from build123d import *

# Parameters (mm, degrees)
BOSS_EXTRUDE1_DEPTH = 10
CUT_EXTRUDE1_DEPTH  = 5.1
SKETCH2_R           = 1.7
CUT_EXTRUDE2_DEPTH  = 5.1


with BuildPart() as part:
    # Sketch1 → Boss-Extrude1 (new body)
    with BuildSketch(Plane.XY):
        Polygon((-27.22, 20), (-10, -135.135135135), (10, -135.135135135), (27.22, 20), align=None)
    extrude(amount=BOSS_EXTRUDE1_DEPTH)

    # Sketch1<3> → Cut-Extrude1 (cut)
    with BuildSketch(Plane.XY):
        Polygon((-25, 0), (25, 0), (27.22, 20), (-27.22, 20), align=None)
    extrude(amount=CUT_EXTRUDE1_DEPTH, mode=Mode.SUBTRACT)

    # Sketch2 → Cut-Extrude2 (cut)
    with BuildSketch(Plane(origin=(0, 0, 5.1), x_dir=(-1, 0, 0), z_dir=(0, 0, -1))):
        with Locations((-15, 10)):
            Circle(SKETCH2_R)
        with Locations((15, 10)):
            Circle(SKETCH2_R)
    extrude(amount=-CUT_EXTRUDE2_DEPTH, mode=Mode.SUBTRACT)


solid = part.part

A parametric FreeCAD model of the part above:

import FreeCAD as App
import Part
import Sketcher
from FreeCAD import Vector

doc = App.newDocument("Part")
body = doc.addObject("PartDesign::Body", "Body")

sketch1 = body.newObject("Sketcher::SketchObject", "Sketch")
sketch1.AttachmentSupport = (doc.getObject("XY_Plane"), [""])
sketch1.MapMode = "FlatFace"
sketch1.addGeometry([
    Part.LineSegment(Vector(-27, 20, 0), Vector(-10, -135, 0)),
    Part.LineSegment(Vector(-10, -135, 0), Vector(10, -135, 0)),
    Part.LineSegment(Vector(10, -135, 0), Vector(27, 20, 0)),
    Part.LineSegment(Vector(27, 20, 0), Vector(-27, 20, 0)),
], False)
sketch1.addConstraint([
    Sketcher.Constraint("Coincident", 0, 2, 1, 1),
    Sketcher.Constraint("Coincident", 1, 2, 2, 1),
    Sketcher.Constraint("Coincident", 2, 2, 3, 1),
    Sketcher.Constraint("Coincident", 3, 2, 0, 1),
    Sketcher.Constraint("Horizontal", 1),
    Sketcher.Constraint("Horizontal", 3),
    Sketcher.Constraint("Equal", 0, 2),
    Sketcher.Constraint("DistanceX", 1, 1, 1, 2, 20.0),
    Sketcher.Constraint("DistanceX", 0, 2, -1, 1, 10.0),
    Sketcher.Constraint("DistanceY", -1, 1, 2, 2, 20.0),
    Sketcher.Constraint("DistanceX", 3, 2, 3, 1, 54.44),
    Sketcher.Constraint("Distance", 0, 156.087919),
])
pad1 = body.newObject("PartDesign::Pad", "Pad")
pad1.Profile = sketch1
pad1.Length = 10

sketch2 = body.newObject("Sketcher::SketchObject", "Sketch001")
sketch2.AttachmentSupport = (doc.getObject("XY_Plane"), [""])
sketch2.MapMode = "FlatFace"
sketch2.addGeometry([
    Part.LineSegment(Vector(-25, 0, 0), Vector(25, 0, 0)),
    Part.LineSegment(Vector(25, 0, 0), Vector(27, 20, 0)),
    Part.LineSegment(Vector(27, 20, 0), Vector(-27, 20, 0)),
    Part.LineSegment(Vector(-27, 20, 0), Vector(-25, 0, 0)),
], False)
sketch2.addConstraint([
    Sketcher.Constraint("Coincident", 0, 2, 1, 1),
    Sketcher.Constraint("Coincident", 1, 2, 2, 1),
    Sketcher.Constraint("Coincident", 2, 2, 3, 1),
    Sketcher.Constraint("Coincident", 3, 2, 0, 1),
    Sketcher.Constraint("Horizontal", 0),
    Sketcher.Constraint("Horizontal", 2),
    Sketcher.Constraint("Symmetric", 0, 2, 3, 2, -1, 1),
    Sketcher.Constraint("Equal", 1, 3),
    Sketcher.Constraint("DistanceX", 0, 1, 0, 2, 50.0),
    Sketcher.Constraint("DistanceY", -1, 1, 1, 2, 20.0),
    Sketcher.Constraint("DistanceX", 2, 2, 2, 1, 54.44),
])
pocket1 = body.newObject("PartDesign::Pocket", "Pocket")
pocket1.Profile = sketch2
pocket1.Length = 5.1
pocket1.Reversed = True

sketch3 = body.newObject("Sketcher::SketchObject", "Sketch002")
sketch3.AttachmentSupport = (doc.getObject("XY_Plane"), [""])
sketch3.MapMode = "FlatFace"
sketch3.AttachmentOffset = App.Placement(Vector(0, 0, 5.1), App.Rotation())
sketch3.addGeometry([
    Part.Circle(Vector(15, 10, 0), Vector(0, 0, 1), 1.7),
    Part.Circle(Vector(-15, 10, 0), Vector(0, 0, 1), 1.7),
], False)
sketch3.addConstraint([
    Sketcher.Constraint("Equal", 0, 1),
    Sketcher.Constraint("Symmetric", 0, 3, 1, 3, -2),
    Sketcher.Constraint("Diameter", 0, 3.4),
    Sketcher.Constraint("DistanceX", -1, 1, 0, 3, 15.0),
    Sketcher.Constraint("DistanceY", -1, 1, 0, 3, 10.0),
])
pocket2 = body.newObject("PartDesign::Pocket", "Pocket001")
pocket2.Profile = sketch3
pocket2.Length = 5.1
pocket2.Reversed = True

doc.recompute()
